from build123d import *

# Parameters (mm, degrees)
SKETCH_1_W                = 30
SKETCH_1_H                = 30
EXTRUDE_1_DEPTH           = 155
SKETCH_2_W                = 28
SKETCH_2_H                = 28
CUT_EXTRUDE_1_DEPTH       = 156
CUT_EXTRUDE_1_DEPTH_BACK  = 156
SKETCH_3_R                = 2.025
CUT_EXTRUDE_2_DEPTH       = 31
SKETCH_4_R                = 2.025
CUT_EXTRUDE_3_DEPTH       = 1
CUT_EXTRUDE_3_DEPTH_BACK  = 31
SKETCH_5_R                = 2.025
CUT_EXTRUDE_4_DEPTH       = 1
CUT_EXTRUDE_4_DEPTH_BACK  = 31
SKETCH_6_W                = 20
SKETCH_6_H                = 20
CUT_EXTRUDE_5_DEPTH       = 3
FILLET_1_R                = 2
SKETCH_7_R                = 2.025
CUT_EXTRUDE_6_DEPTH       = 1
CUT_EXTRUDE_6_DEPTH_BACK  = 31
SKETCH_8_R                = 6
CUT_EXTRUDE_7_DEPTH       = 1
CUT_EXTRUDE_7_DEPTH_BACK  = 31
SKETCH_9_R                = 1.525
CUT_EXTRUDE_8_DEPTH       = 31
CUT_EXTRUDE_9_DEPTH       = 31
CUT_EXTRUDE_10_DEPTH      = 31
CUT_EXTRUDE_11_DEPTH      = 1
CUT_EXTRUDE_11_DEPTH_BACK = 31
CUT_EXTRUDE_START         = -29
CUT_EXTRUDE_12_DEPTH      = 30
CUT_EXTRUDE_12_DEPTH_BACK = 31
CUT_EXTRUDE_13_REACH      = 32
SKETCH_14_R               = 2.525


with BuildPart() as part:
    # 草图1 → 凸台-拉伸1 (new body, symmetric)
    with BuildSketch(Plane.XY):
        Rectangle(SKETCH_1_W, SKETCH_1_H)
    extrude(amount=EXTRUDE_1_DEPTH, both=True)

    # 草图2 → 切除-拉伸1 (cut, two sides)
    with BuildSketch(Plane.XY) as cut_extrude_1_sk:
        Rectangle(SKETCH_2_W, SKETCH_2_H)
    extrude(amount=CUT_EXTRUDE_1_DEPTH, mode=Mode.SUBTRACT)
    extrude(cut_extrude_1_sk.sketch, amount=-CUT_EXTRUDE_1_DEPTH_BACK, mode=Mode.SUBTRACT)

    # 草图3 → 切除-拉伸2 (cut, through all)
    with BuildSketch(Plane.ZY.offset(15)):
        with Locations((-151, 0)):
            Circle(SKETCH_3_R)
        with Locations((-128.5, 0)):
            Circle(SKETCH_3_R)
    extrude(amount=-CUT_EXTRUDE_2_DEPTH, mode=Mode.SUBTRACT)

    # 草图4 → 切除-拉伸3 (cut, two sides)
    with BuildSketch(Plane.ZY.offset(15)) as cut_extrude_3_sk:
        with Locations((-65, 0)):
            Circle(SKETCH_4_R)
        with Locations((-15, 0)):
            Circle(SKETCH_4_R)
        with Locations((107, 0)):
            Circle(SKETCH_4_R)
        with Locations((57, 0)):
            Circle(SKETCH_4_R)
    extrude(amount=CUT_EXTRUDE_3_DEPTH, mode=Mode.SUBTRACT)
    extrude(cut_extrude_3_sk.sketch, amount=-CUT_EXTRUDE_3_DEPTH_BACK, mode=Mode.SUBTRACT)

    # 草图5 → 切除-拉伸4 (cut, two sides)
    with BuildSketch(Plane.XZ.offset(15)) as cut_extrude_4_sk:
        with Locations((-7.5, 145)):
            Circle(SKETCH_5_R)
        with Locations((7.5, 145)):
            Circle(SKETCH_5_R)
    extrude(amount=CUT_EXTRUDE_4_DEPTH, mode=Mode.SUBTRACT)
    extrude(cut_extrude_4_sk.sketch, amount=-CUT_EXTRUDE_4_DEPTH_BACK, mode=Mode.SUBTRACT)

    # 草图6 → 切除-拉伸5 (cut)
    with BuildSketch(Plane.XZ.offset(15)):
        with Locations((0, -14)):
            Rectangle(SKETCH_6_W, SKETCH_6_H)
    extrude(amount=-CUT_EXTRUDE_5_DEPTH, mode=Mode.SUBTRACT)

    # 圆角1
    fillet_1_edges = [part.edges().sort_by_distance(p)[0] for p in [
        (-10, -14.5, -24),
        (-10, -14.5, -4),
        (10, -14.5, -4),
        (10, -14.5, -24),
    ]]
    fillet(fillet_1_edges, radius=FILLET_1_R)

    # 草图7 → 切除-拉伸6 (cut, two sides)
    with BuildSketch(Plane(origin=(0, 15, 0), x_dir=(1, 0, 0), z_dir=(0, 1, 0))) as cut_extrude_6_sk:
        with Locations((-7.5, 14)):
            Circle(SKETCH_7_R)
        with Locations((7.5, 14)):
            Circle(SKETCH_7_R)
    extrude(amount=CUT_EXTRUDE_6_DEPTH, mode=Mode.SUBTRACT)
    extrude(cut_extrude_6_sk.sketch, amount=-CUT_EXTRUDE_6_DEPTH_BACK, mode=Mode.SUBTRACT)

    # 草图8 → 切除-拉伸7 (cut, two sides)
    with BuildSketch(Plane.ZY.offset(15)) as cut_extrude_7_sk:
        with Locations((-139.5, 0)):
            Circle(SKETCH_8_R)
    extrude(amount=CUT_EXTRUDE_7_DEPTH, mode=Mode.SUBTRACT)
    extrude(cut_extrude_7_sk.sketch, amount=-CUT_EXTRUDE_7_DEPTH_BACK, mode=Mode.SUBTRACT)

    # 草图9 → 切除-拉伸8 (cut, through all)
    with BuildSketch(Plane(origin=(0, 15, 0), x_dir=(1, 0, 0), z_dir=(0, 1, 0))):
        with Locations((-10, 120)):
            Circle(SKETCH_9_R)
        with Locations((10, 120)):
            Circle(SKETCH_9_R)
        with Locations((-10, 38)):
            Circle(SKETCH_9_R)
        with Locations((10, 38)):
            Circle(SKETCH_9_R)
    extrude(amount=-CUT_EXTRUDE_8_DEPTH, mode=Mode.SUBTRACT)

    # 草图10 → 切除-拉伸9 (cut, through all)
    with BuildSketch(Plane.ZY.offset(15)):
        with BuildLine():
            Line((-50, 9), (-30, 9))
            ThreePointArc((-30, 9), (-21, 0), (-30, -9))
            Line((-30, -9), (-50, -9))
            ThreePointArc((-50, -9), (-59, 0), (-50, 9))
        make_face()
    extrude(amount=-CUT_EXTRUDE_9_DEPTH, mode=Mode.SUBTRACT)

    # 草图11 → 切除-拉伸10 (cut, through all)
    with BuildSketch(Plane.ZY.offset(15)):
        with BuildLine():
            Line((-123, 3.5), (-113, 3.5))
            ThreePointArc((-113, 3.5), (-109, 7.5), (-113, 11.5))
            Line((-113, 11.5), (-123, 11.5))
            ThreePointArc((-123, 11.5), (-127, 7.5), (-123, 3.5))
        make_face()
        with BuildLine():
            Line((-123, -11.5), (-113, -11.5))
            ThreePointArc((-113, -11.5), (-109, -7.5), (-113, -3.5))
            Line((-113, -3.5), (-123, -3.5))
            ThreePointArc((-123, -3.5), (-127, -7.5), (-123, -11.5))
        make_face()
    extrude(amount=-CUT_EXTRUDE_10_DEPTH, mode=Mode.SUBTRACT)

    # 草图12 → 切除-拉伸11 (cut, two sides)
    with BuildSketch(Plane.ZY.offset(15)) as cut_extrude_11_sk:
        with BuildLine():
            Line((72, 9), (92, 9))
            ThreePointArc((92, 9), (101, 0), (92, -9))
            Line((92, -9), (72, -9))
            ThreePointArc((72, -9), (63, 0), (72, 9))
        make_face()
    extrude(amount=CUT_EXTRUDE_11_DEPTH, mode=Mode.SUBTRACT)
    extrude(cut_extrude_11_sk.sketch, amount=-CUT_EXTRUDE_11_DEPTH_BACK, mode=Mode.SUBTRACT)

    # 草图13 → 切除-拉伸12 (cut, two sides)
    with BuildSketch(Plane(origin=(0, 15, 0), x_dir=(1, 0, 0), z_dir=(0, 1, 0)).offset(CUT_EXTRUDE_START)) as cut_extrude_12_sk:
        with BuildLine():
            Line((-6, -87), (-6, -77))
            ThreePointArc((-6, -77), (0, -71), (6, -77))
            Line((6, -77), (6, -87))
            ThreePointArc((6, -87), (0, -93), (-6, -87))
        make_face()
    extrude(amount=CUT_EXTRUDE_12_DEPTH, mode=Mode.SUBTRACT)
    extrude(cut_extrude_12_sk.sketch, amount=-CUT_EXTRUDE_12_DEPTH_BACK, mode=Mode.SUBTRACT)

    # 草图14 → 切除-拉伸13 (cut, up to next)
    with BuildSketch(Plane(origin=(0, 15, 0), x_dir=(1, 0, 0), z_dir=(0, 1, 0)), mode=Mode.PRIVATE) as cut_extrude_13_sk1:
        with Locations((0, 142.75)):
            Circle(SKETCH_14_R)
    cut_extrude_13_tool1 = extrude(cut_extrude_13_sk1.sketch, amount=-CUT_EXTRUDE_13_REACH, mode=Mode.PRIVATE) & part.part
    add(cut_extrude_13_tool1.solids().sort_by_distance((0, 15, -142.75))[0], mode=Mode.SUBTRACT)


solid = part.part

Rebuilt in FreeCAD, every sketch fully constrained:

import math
import FreeCAD as App
import Part
import Sketcher

V = App.Vector


def edges_at(feature, points):
    """Names of the edges that pass closest to the given points."""
    edges = feature.Shape.Edges
    near = lambda p: min(range(len(edges)), key=lambda i: edges[i].distToShape(Part.Vertex(*p))[0])
    return sorted({f"Edge{near(p) + 1}" for p in points})


def add_polygon(sketch, points):
    """Adds a closed chain of lines whose ends are joined by coincident constraints."""
    first, n = sketch.GeometryCount, len(points)
    for a, b in zip(points, points[1:] + points[:1]):
        sketch.addGeometry(Part.LineSegment(App.Vector(*a, 0), App.Vector(*b, 0)), False)
    for i in range(n):
        sketch.addConstraint(Sketcher.Constraint("Coincident", first + i, 2, first + (i + 1) % n, 1))

doc = App.newDocument("Part")
body = doc.addObject("PartDesign::Body", "Body")

sketch1 = doc.addObject("Sketcher::SketchObject", "Sketch")
body.addObject(sketch1)
sketch1.AttachmentSupport = (doc.XY_Plane, [""])
sketch1.MapMode = "FlatFace"
add_polygon(sketch1, [(-15, 15), (-15, -15), (15, -15), (15, 15)])
sketch1.addConstraint(Sketcher.Constraint("Vertical", 0))
sketch1.addConstraint(Sketcher.Constraint("Horizontal", 1))
sketch1.addConstraint(Sketcher.Constraint("Vertical", 2))
sketch1.addConstraint(Sketcher.Constraint("Horizontal", 3))
sketch1.addConstraint(Sketcher.Constraint("Symmetric", 0, 2, 2, 2, -1, 1))
sketch1.addConstraint(Sketcher.Constraint("Equal", 3, 0))
sketch1.addConstraint(Sketcher.Constraint("DistanceX", 1, 1, 1, 2, 30.0))
pad1 = doc.addObject("PartDesign::Pad", "Pad")
body.addObject(pad1)
pad1.Profile = sketch1
pad1.Length = 310
pad1.Midplane = True

sketch2 = doc.addObject("Sketcher::SketchObject", "Sketch001")
body.addObject(sketch2)
sketch2.AttachmentSupport = (doc.XY_Plane, [""])
sketch2.MapMode = "FlatFace"
add_polygon(sketch2, [(-14, 14), (-14, -14), (14, -14), (14, 14)])
sketch2.addConstraint(Sketcher.Constraint("Vertical", 0))
sketch2.addConstraint(Sketcher.Constraint("Horizontal", 1))
sketch2.addConstraint(Sketcher.Constraint("Vertical", 2))
sketch2.addConstraint(Sketcher.Constraint("Horizontal", 3))
sketch2.addConstraint(Sketcher.Constraint("Symmetric", 0, 2, 2, 2, -1, 1))
sketch2.addConstraint(Sketcher.Constraint("Equal", 3, 0))
sketch2.addConstraint(Sketcher.Constraint("DistanceX", 1, 1, 1, 2, 28.0))
pocket1 = doc.addObject("PartDesign::Pocket", "Pocket")
body.addObject(pocket1)
pocket1.Profile = sketch2
pocket1.Type = "ThroughAll"
pocket1.Midplane = True

sketch3 = doc.addObject("Sketcher::SketchObject", "Sketch002")
body.addObject(sketch3)
sketch3.AttachmentSupport = (doc.YZ_Plane, [""])
sketch3.MapMode = "FlatFace"
sketch3.AttachmentOffset = App.Placement(V(0, 0, -15), App.Rotation())
sketch3.addGeometry(Part.Circle(V(0, -151, 0), V(0, 0, 1), 2), False)
sketch3.addGeometry(Part.Circle(V(0, -128.5, 0), V(0, 0, 1), 2), False)
sketch3.addConstraint(Sketcher.Constraint("Equal", 0, 1))
sketch3.addConstraint(Sketcher.Constraint("PointOnObject", 0, 3, -2))
sketch3.addConstraint(Sketcher.Constraint("PointOnObject", 1, 3, -2))
sketch3.addConstraint(Sketcher.Constraint("Diameter", 0, 4.05))
sketch3.addConstraint(Sketcher.Constraint("DistanceY", 0, 3, -1, 1, 151.0))
sketch3.addConstraint(Sketcher.Constraint("DistanceY", 1, 3, -1, 1, 128.5))
pocket2 = doc.addObject("PartDesign::Pocket", "Pocket001")
body.addObject(pocket2)
pocket2.Profile = sketch3
pocket2.Type = "ThroughAll"
pocket2.Reversed = True

sketch4 = doc.addObject("Sketcher::SketchObject", "Sketch003")
body.addObject(sketch4)
sketch4.AttachmentSupport = (doc.YZ_Plane, [""])
sketch4.MapMode = "FlatFace"
sketch4.AttachmentOffset = App.Placement(V(0, 0, -15), App.Rotation())
sketch4.addGeometry(Part.Circle(V(0, -65, 0), V(0, 0, 1), 2), False)
sketch4.addGeometry(Part.Circle(V(0, -15, 0), V(0, 0, 1), 2), False)
sketch4.addGeometry(Part.Circle(V(0, 107, 0), V(0, 0, 1), 2), False)
sketch4.addGeometry(Part.Circle(V(0, 57, 0), V(0, 0, 1), 2), False)
sketch4.addConstraint(Sketcher.Constraint("Equal", 0, 1))
sketch4.addConstraint(Sketcher.Constraint("Equal", 1, 2))
sketch4.addConstraint(Sketcher.Constraint("Equal", 2, 3))
sketch4.addConstraint(Sketcher.Constraint("PointOnObject", 0, 3, -2))
sketch4.addConstraint(Sketcher.Constraint("PointOnObject", 1, 3, -2))
sketch4.addConstraint(Sketcher.Constraint("PointOnObject", 2, 3, -2))
sketch4.addConstraint(Sketcher.Constraint("PointOnObject", 3, 3, -2))
sketch4.addConstraint(Sketcher.Constraint("Diameter", 0, 4.05))
sketch4.addConstraint(Sketcher.Constraint("DistanceY", 0, 3, -1, 1, 65.0))
sketch4.addConstraint(Sketcher.Constraint("DistanceY", 1, 3, -1, 1, 15.0))
sketch4.addConstraint(Sketcher.Constraint("DistanceY", -1, 1, 2, 3, 107.0))
sketch4.addConstraint(Sketcher.Constraint("DistanceY", -1, 1, 3, 3, 57.0))
pocket3 = doc.addObject("PartDesign::Pocket", "Pocket002")
body.addObject(pocket3)
pocket3.Profile = sketch4
pocket3.Type = "ThroughAll"
pocket3.Midplane = True

sketch5 = doc.addObject("Sketcher::SketchObject", "Sketch004")
body.addObject(sketch5)
sketch5.AttachmentSupport = (doc.XZ_Plane, [""])
sketch5.MapMode = "FlatFace"
sketch5.AttachmentOffset = App.Placement(V(0, 0, 15), App.Rotation())
sketch5.addGeometry(Part.Circle(V(-7.5, 145, 0), V(0, 0, 1), 2), False)
sketch5.addGeometry(Part.Circle(V(7.5, 145, 0), V(0, 0, 1), 2), False)
sketch5.addConstraint(Sketcher.Constraint("Equal", 0, 1))
sketch5.addConstraint(Sketcher.Constraint("Symmetric", 0, 3, 1, 3, -2))
sketch5.addConstraint(Sketcher.Constraint("Diameter", 0, 4.05))
sketch5.addConstraint(Sketcher.Constraint("DistanceY", -1, 1, 0, 3, 145.0))
sketch5.addConstraint(Sketcher.Constraint("DistanceX", 0, 3, 1, 3, 15.0))
pocket4 = doc.addObject("PartDesign::Pocket", "Pocket003")
body.addObject(pocket4)
pocket4.Profile = sketch5
pocket4.Type = "ThroughAll"
pocket4.Midplane = True

sketch6 = doc.addObject("Sketcher::SketchObject", "Sketch005")
body.addObject(sketch6)
sketch6.AttachmentSupport = (doc.XZ_Plane, [""])
sketch6.MapMode = "FlatFace"
sketch6.AttachmentOffset = App.Placement(V(0, 0, 15), App.Rotation())
add_polygon(sketch6, [(-10, -4), (-10, -24), (10, -24), (10, -4)])
sketch6.addConstraint(Sketcher.Constraint("Vertical", 0))
sketch6.addConstraint(Sketcher.Constraint("Horizontal", 1))
sketch6.addConstraint(Sketcher.Constraint("Vertical", 2))
sketch6.addConstraint(Sketcher.Constraint("Horizontal", 3))
sketch6.addConstraint(Sketcher.Constraint("Equal", 3, 0))
sketch6.addConstraint(Sketcher.Constraint("DistanceX", 1, 1, 1, 2, 20.0))
sketch6.addConstraint(Sketcher.Constraint("DistanceX", 0, 2, -1, 1, 10.0))
sketch6.addConstraint(Sketcher.Constraint("DistanceY", 0, 2, -1, 1, 24.0))
pocket5 = doc.addObject("PartDesign::Pocket", "Pocket004")
body.addObject(pocket5)
pocket5.Profile = sketch6
pocket5.Length = 3
doc.recompute()

fillet = doc.addObject("PartDesign::Fillet", "Fillet")
body.addObject(fillet)
fillet.Base = (pocket5, edges_at(pocket5, [
    (-10, -14.5, -24),
    (-10, -14.5, -4),
    (10, -14.5, -4),
    (10, -14.5, -24),
]))
fillet.Radius = 2

sketch7 = doc.addObject("Sketcher::SketchObject", "Sketch006")
body.addObject(sketch7)
sketch7.AttachmentSupport = (doc.XZ_Plane, [""])
sketch7.MapMode = "FlatFace"
sketch7.AttachmentOffset = App.Placement(V(0, 0, -15), App.Rotation())
sketch7.addGeometry(Part.Circle(V(-7.5, -14, 0), V(0, 0, 1), 2), False)
sketch7.addGeometry(Part.Circle(V(7.5, -14, 0), V(0, 0, 1), 2), False)
sketch7.addConstraint(Sketcher.Constraint("Equal", 0, 1))
sketch7.addConstraint(Sketcher.Constraint("Symmetric", 0, 3, 1, 3, -2))
sketch7.addConstraint(Sketcher.Constraint("Diameter", 0, 4.05))
sketch7.addConstraint(Sketcher.Constraint("DistanceY", 0, 3, -1, 1, 14.0))
sketch7.addConstraint(Sketcher.Constraint("DistanceX", 0, 3, 1, 3, 15.0))
pocket6 = doc.addObject("PartDesign::Pocket", "Pocket005")
body.addObject(pocket6)
pocket6.Profile = sketch7
pocket6.Type = "ThroughAll"
pocket6.Midplane = True

sketch8 = doc.addObject("Sketcher::SketchObject", "Sketch007")
body.addObject(sketch8)
sketch8.AttachmentSupport = (doc.YZ_Plane, [""])
sketch8.MapMode = "FlatFace"
sketch8.AttachmentOffset = App.Placement(V(0, 0, -15), App.Rotation())
sketch8.addGeometry(Part.Circle(V(0, -140, 0), V(0, 0, 1), 6), False)
sketch8.addConstraint(Sketcher.Constraint("PointOnObject", 0, 3, -2))
sketch8.addConstraint(Sketcher.Constraint("Diameter", 0, 12.0))
sketch8.addConstraint(Sketcher.Constraint("DistanceY", 0, 3, -1, 1, 139.5))
pocket7 = doc.addObject("PartDesign::Pocket", "Pocket006")
body.addObject(pocket7)
pocket7.Profile = sketch8
pocket7.Type = "ThroughAll"
pocket7.Midplane = True

sketch9 = doc.addObject("Sketcher::SketchObject", "Sketch008")
body.addObject(sketch9)
sketch9.AttachmentSupport = (doc.XZ_Plane, [""])
sketch9.MapMode = "FlatFace"
sketch9.AttachmentOffset = App.Placement(V(0, 0, -15), App.Rotation())
sketch9.addGeometry(Part.Circle(V(-10, -120, 0), V(0, 0, 1), 1.5), False)
sketch9.addGeometry(Part.Circle(V(10, -120, 0), V(0, 0, 1), 1.5), False)
sketch9.addGeometry(Part.Circle(V(-10, -38, 0), V(0, 0, 1), 1.5), False)
sketch9.addGeometry(Part.Circle(V(10, -38, 0), V(0, 0, 1), 1.5), False)
sketch9.addConstraint(Sketcher.Constraint("Equal", 0, 1))
sketch9.addConstraint(Sketcher.Constraint("Equal", 1, 2))
sketch9.addConstraint(Sketcher.Constraint("Equal", 2, 3))
sketch9.addConstraint(Sketcher.Constraint("Symmetric", 0, 3, 1, 3, -2))
sketch9.addConstraint(Sketcher.Constraint("Symmetric", 2, 3, 3, 3, -2))
sketch9.addConstraint(Sketcher.Constraint("Vertical", 0, 3, 2, 3))
sketch9.addConstraint(Sketcher.Constraint("Diameter", 0, 3.05))
sketch9.addConstraint(Sketcher.Constraint("DistanceX", 0, 3, -1, 1, 10.0))
sketch9.addConstraint(Sketcher.Constraint("DistanceY", 0, 3, -1, 1, 120.0))
sketch9.addConstraint(Sketcher.Constraint("DistanceY", 2, 3, -1, 1, 38.0))
pocket8 = doc.addObject("PartDesign::Pocket", "Pocket007")
body.addObject(pocket8)
pocket8.Profile = sketch9
pocket8.Type = "ThroughAll"
pocket8.Reversed = True

sketch10 = doc.addObject("Sketcher::SketchObject", "Sketch009")
body.addObject(sketch10)
sketch10.AttachmentSupport = (doc.YZ_Plane, [""])
sketch10.MapMode = "FlatFace"
sketch10.AttachmentOffset = App.Placement(V(0, 0, -15), App.Rotation())
sketch10.addGeometry(Part.LineSegment(V(9, -30, 0), V(9, -50, 0)), False)
sketch10.addGeometry(Part.ArcOfCircle(Part.Circle(V(0, -50, 0), V(0, 0, 1), 9), math.radians(180), math.radians(360)), False)
sketch10.addGeometry(Part.LineSegment(V(-9, -50, 0), V(-9, -30, 0)), False)
sketch10.addGeometry(Part.ArcOfCircle(Part.Circle(V(0, -30, 0), V(0, 0, 1), 9), math.radians(0), math.radians(180)), False)
sketch10.addConstraint(Sketcher.Constraint("Tangent", 0, 2, 1, 2))
sketch10.addConstraint(Sketcher.Constraint("Tangent", 1, 1, 2, 1))
sketch10.addConstraint(Sketcher.Constraint("Tangent", 2, 2, 3, 2))
sketch10.addConstraint(Sketcher.Constraint("Tangent", 3, 1, 0, 1))
sketch10.addConstraint(Sketcher.Constraint("Vertical", 0))
sketch10.addConstraint(Sketcher.Constraint("Vertical", 2))
sketch10.addConstraint(Sketcher.Constraint("PointOnObject", 1, 3, -2))
sketch10.addConstraint(Sketcher.Constraint("Radius", 1, 9.0))
sketch10.addConstraint(Sketcher.Constraint("DistanceY", 0, 2, 0, 1, 20.0))
sketch10.addConstraint(Sketcher.Constraint("DistanceY", 1, 3, -1, 1, 50.0))
pocket9 = doc.addObject("PartDesign::Pocket", "Pocket008")
body.addObject(pocket9)
pocket9.Profile = sketch10
pocket9.Type = "ThroughAll"
pocket9.Reversed = True

sketch11 = doc.addObject("Sketcher::SketchObject", "Sketch010")
body.addObject(sketch11)
sketch11.AttachmentSupport = (doc.YZ_Plane, [""])
sketch11.MapMode = "FlatFace"
sketch11.AttachmentOffset = App.Placement(V(0, 0, -15), App.Rotation())
sketch11.addGeometry(Part.LineSegment(V(3.5, -123, 0), V(3.5, -113, 0)), False)
sketch11.addGeometry(Part.ArcOfCircle(Part.Circle(V(7.5, -113, 0), V(0, 0, 1), 4), math.radians(0), math.radians(180)), False)
sketch11.addGeometry(Part.LineSegment(V(11.5, -113, 0), V(11.5, -123, 0)), False)
sketch11.addGeometry(Part.ArcOfCircle(Part.Circle(V(7.5, -123, 0), V(0, 0, 1), 4), math.radians(180), math.radians(360)), False)
sketch11.addGeometry(Part.LineSegment(V(-11.5, -123, 0), V(-11.5, -113, 0)), False)
sketch11.addGeometry(Part.ArcOfCircle(Part.Circle(V(-7.5, -113, 0), V(0, 0, 1), 4), math.radians(0), math.radians(180)), False)
sketch11.addGeometry(Part.LineSegment(V(-3.5, -113, 0), V(-3.5, -123, 0)), False)
sketch11.addGeometry(Part.ArcOfCircle(Part.Circle(V(-7.5, -123, 0), V(0, 0, 1), 4), math.radians(180), math.radians(360)), False)
sketch11.addConstraint(Sketcher.Constraint("Tangent", 0, 2, 1, 2))
sketch11.addConstraint(Sketcher.Constraint("Tangent", 1, 1, 2, 1))
sketch11.addConstraint(Sketcher.Constraint("Tangent", 2, 2, 3, 2))
sketch11.addConstraint(Sketcher.Constraint("Tangent", 3, 1, 0, 1))
sketch11.addConstraint(Sketcher.Constraint("Tangent", 4, 2, 5, 2))
sketch11.addConstraint(Sketcher.Constraint("Tangent", 5, 1, 6, 1))
sketch11.addConstraint(Sketcher.Constraint("Tangent", 6, 2, 7, 2))
sketch11.addConstraint(Sketcher.Constraint("Tangent", 7, 1, 4, 1))
sketch11.addConstraint(Sketcher.Constraint("Vertical", 0))
sketch11.addConstraint(Sketcher.Constraint("Vertical", 2))
sketch11.addConstraint(Sketcher.Constraint("Vertical", 4))
sketch11.addConstraint(Sketcher.Constraint("Vertical", 6))
sketch11.addConstraint(Sketcher.Constraint("Equal", 3, 5))
sketch11.addConstraint(Sketcher.Constraint("Symmetric", 1, 3, 5, 3, -2))
sketch11.addConstraint(Sketcher.Constraint("Horizontal", 3, 3, 7, 3))
sketch11.addConstraint(Sketcher.Constraint("Radius", 1, 4.0))
sketch11.addConstraint(Sketcher.Constraint("DistanceY", 0, 1, 0, 2, 10.0))
sketch11.addConstraint(Sketcher.Constraint("DistanceY", 1, 3, -1, 1, 113.0))
sketch11.addConstraint(Sketcher.Constraint("DistanceX", 5, 3, 1, 3, 15.0))
pocket10 = doc.addObject("PartDesign::Pocket", "Pocket009")
body.addObject(pocket10)
pocket10.Profile = sketch11
pocket10.Type = "ThroughAll"
pocket10.Reversed = True

sketch12 = doc.addObject("Sketcher::SketchObject", "Sketch011")
body.addObject(sketch12)
sketch12.AttachmentSupport = (doc.YZ_Plane, [""])
sketch12.MapMode = "FlatFace"
sketch12.AttachmentOffset = App.Placement(V(0, 0, -15), App.Rotation())
sketch12.addGeometry(Part.LineSegment(V(9, 92, 0), V(9, 72, 0)), False)
sketch12.addGeometry(Part.ArcOfCircle(Part.Circle(V(0, 72, 0), V(0, 0, 1), 9), math.radians(180), math.radians(360)), False)
sketch12.addGeometry(Part.LineSegment(V(-9, 72, 0), V(-9, 92, 0)), False)
sketch12.addGeometry(Part.ArcOfCircle(Part.Circle(V(0, 92, 0), V(0, 0, 1), 9), math.radians(0), math.radians(180)), False)
sketch12.addConstraint(Sketcher.Constraint("Tangent", 0, 2, 1, 2))
sketch12.addConstraint(Sketcher.Constraint("Tangent", 1, 1, 2, 1))
sketch12.addConstraint(Sketcher.Constraint("Tangent", 2, 2, 3, 2))
sketch12.addConstraint(Sketcher.Constraint("Tangent", 3, 1, 0, 1))
sketch12.addConstraint(Sketcher.Constraint("Vertical", 0))
sketch12.addConstraint(Sketcher.Constraint("Vertical", 2))
sketch12.addConstraint(Sketcher.Constraint("PointOnObject", 1, 3, -2))
sketch12.addConstraint(Sketcher.Constraint("Radius", 1, 9.0))
sketch12.addConstraint(Sketcher.Constraint("DistanceY", 0, 2, 0, 1, 20.0))
sketch12.addConstraint(Sketcher.Constraint("DistanceY", -1, 1, 1, 3, 72.0))
pocket11 = doc.addObject("PartDesign::Pocket", "Pocket010")
body.addObject(pocket11)
pocket11.Profile = sketch12
pocket11.Type = "ThroughAll"
pocket11.Midplane = True

sketch13 = doc.addObject("Sketcher::SketchObject", "Sketch012")
body.addObject(sketch13)
sketch13.AttachmentSupport = (doc.XZ_Plane, [""])
sketch13.MapMode = "FlatFace"
sketch13.AttachmentOffset = App.Placement(V(0, 0, 14), App.Rotation())
sketch13.addGeometry(Part.LineSegment(V(-6, 77, 0), V(-6, 87, 0)), False)
sketch13.addGeometry(Part.ArcOfCircle(Part.Circle(V(0, 87, 0), V(0, 0, 1), 6), math.radians(0), math.radians(180)), False)
sketch13.addGeometry(Part.LineSegment(V(6, 87, 0), V(6, 77, 0)), False)
sketch13.addGeometry(Part.ArcOfCircle(Part.Circle(V(0, 77, 0), V(0, 0, 1), 6), math.radians(180), math.radians(360)), False)
sketch13.addConstraint(Sketcher.Constraint("Tangent", 0, 2, 1, 2))
sketch13.addConstraint(Sketcher.Constraint("Tangent", 1, 1, 2, 1))
sketch13.addConstraint(Sketcher.Constraint("Tangent", 2, 2, 3, 2))
sketch13.addConstraint(Sketcher.Constraint("Tangent", 3, 1, 0, 1))
sketch13.addConstraint(Sketcher.Constraint("Vertical", 0))
sketch13.addConstraint(Sketcher.Constraint("Vertical", 2))
sketch13.addConstraint(Sketcher.Constraint("PointOnObject", 1, 3, -2))
sketch13.addConstraint(Sketcher.Constraint("Radius", 1, 6.0))
sketch13.addConstraint(Sketcher.Constraint("DistanceY", 0, 1, 0, 2, 10.0))
sketch13.addConstraint(Sketcher.Constraint("DistanceY", -1, 1, 1, 3, 87.0))
pocket12 = doc.addObject("PartDesign::Pocket", "Pocket011")
body.addObject(pocket12)
pocket12.Profile = sketch13
pocket12.Type = "ThroughAll"
pocket12.Midplane = True

sketch14 = doc.addObject("Sketcher::SketchObject", "Sketch013")
body.addObject(sketch14)
sketch14.AttachmentSupport = (doc.XZ_Plane, [""])
sketch14.MapMode = "FlatFace"
sketch14.AttachmentOffset = App.Placement(V(0, 0, -15), App.Rotation())
sketch14.addGeometry(Part.Circle(V(0, -142.8, 0), V(0, 0, 1), 2.5), False)
sketch14.addConstraint(Sketcher.Constraint("PointOnObject", 0, 3, -2))
sketch14.addConstraint(Sketcher.Constraint("Diameter", 0, 5.05))
sketch14.addConstraint(Sketcher.Constraint("DistanceY", 0, 3, -1, 1, 142.75))
pocket13 = doc.addObject("PartDesign::Pocket", "Pocket012")
body.addObject(pocket13)
pocket13.Profile = sketch14
pocket13.Type = "UpToFirst"
pocket13.Reversed = True

doc.recompute()
